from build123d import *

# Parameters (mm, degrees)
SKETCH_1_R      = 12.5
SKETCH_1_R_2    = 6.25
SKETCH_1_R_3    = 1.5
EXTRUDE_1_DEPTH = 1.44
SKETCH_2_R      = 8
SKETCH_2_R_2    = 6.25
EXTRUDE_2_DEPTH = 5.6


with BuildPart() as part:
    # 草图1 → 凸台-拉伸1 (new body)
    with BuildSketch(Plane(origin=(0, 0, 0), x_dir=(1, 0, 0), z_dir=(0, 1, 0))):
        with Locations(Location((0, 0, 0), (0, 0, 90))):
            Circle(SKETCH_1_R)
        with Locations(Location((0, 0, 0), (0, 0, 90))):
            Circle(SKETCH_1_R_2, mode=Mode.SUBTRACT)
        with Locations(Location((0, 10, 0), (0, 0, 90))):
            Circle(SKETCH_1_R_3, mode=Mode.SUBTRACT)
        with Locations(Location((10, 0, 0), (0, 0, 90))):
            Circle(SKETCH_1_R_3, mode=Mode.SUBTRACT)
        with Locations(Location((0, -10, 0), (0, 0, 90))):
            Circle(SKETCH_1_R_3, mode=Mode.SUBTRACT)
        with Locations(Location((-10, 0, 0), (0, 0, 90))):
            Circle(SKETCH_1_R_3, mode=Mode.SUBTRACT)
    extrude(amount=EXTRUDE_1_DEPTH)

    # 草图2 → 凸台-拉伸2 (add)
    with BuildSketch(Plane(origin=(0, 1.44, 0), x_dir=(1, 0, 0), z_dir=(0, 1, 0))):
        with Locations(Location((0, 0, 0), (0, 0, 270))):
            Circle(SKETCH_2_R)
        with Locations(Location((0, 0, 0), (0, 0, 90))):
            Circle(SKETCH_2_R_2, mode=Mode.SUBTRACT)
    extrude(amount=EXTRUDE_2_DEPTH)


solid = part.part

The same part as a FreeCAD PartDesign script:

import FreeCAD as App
import Part
import Sketcher

V = App.Vector

doc = App.newDocument("Part")
body = doc.addObject("PartDesign::Body", "Body")

# Sketch on XZ plane
sketch1 = body.newObject("Sketcher::SketchObject", "Sketch")
sketch1.AttachmentSupport = (doc.getObject("XZ_Plane"), [""])
sketch1.MapMode = "FlatFace"
sketch1.addGeometry([
    Part.Circle(V(0, 0, 0), V(0, 0, 1), 12.5),  # 0
    Part.Circle(V(0, 10, 0), V(0, 0, 1), 1.5),  # 1
    Part.Circle(V(10, 0, 0), V(0, 0, 1), 1.5),  # 2
    Part.Circle(V(-10, 0, 0), V(0, 0, 1), 1.5),  # 3
    Part.Circle(V(0, 0, 0), V(0, 0, 1), 6.2),  # 4
    Part.Circle(V(0, -10, 0), V(0, 0, 1), 1.5),  # 5
], False)
sketch1.addConstraint([
    Sketcher.Constraint("Coincident", 0, 3, -1, 1),
    Sketcher.Constraint("Coincident", 4, 3, -1, 1),
    Sketcher.Constraint("Equal", 1, 2),
    Sketcher.Constraint("Equal", 2, 3),
    Sketcher.Constraint("Equal", 3, 5),
    Sketcher.Constraint("Symmetric", 2, 3, 3, 3, -1, 1),
    Sketcher.Constraint("Symmetric", 1, 3, 5, 3, -1, 1),
    Sketcher.Constraint("PointOnObject", 1, 3, -2),
    Sketcher.Constraint("PointOnObject", 2, 3, -1),
    Sketcher.Constraint("Diameter", 0, 25.0),
    Sketcher.Constraint("Diameter", 1, 3.0),
    Sketcher.Constraint("Diameter", 4, 12.5),
    Sketcher.Constraint("DistanceY", -1, 1, 1, 3, 10.0),
    Sketcher.Constraint("DistanceX", -1, 1, 2, 3, 10.0),
])
pad1 = body.newObject("PartDesign::Pad", "Pad")
pad1.Profile = sketch1
pad1.Length = 1.44
pad1.Reversed = True

# Sketch on XZ plane
sketch2 = body.newObject("Sketcher::SketchObject", "Sketch001")
sketch2.AttachmentSupport = (doc.getObject("XZ_Plane"), [""])
sketch2.MapMode = "FlatFace"
sketch2.AttachmentOffset = App.Placement(V(0, 0, -1.44), App.Rotation())
sketch2.addGeometry([
    Part.Circle(V(0, 0, 0), V(0, 0, 1), 8),
    Part.Circle(V(0, 0, 0), V(0, 0, 1), 6),
], False)
sketch2.addConstraint([
    Sketcher.Constraint("Coincident", 0, 3, -1, 1),
    Sketcher.Constraint("Coincident", 1, 3, -1, 1),
    Sketcher.Constraint("Diameter", 0, 16.0),
    Sketcher.Constraint("Diameter", 1, 12.5),
])
pad2 = body.newObject("PartDesign::Pad", "Pad001")
pad2.Profile = sketch2
pad2.Length = 5.6
pad2.Reversed = True

doc.recompute()
